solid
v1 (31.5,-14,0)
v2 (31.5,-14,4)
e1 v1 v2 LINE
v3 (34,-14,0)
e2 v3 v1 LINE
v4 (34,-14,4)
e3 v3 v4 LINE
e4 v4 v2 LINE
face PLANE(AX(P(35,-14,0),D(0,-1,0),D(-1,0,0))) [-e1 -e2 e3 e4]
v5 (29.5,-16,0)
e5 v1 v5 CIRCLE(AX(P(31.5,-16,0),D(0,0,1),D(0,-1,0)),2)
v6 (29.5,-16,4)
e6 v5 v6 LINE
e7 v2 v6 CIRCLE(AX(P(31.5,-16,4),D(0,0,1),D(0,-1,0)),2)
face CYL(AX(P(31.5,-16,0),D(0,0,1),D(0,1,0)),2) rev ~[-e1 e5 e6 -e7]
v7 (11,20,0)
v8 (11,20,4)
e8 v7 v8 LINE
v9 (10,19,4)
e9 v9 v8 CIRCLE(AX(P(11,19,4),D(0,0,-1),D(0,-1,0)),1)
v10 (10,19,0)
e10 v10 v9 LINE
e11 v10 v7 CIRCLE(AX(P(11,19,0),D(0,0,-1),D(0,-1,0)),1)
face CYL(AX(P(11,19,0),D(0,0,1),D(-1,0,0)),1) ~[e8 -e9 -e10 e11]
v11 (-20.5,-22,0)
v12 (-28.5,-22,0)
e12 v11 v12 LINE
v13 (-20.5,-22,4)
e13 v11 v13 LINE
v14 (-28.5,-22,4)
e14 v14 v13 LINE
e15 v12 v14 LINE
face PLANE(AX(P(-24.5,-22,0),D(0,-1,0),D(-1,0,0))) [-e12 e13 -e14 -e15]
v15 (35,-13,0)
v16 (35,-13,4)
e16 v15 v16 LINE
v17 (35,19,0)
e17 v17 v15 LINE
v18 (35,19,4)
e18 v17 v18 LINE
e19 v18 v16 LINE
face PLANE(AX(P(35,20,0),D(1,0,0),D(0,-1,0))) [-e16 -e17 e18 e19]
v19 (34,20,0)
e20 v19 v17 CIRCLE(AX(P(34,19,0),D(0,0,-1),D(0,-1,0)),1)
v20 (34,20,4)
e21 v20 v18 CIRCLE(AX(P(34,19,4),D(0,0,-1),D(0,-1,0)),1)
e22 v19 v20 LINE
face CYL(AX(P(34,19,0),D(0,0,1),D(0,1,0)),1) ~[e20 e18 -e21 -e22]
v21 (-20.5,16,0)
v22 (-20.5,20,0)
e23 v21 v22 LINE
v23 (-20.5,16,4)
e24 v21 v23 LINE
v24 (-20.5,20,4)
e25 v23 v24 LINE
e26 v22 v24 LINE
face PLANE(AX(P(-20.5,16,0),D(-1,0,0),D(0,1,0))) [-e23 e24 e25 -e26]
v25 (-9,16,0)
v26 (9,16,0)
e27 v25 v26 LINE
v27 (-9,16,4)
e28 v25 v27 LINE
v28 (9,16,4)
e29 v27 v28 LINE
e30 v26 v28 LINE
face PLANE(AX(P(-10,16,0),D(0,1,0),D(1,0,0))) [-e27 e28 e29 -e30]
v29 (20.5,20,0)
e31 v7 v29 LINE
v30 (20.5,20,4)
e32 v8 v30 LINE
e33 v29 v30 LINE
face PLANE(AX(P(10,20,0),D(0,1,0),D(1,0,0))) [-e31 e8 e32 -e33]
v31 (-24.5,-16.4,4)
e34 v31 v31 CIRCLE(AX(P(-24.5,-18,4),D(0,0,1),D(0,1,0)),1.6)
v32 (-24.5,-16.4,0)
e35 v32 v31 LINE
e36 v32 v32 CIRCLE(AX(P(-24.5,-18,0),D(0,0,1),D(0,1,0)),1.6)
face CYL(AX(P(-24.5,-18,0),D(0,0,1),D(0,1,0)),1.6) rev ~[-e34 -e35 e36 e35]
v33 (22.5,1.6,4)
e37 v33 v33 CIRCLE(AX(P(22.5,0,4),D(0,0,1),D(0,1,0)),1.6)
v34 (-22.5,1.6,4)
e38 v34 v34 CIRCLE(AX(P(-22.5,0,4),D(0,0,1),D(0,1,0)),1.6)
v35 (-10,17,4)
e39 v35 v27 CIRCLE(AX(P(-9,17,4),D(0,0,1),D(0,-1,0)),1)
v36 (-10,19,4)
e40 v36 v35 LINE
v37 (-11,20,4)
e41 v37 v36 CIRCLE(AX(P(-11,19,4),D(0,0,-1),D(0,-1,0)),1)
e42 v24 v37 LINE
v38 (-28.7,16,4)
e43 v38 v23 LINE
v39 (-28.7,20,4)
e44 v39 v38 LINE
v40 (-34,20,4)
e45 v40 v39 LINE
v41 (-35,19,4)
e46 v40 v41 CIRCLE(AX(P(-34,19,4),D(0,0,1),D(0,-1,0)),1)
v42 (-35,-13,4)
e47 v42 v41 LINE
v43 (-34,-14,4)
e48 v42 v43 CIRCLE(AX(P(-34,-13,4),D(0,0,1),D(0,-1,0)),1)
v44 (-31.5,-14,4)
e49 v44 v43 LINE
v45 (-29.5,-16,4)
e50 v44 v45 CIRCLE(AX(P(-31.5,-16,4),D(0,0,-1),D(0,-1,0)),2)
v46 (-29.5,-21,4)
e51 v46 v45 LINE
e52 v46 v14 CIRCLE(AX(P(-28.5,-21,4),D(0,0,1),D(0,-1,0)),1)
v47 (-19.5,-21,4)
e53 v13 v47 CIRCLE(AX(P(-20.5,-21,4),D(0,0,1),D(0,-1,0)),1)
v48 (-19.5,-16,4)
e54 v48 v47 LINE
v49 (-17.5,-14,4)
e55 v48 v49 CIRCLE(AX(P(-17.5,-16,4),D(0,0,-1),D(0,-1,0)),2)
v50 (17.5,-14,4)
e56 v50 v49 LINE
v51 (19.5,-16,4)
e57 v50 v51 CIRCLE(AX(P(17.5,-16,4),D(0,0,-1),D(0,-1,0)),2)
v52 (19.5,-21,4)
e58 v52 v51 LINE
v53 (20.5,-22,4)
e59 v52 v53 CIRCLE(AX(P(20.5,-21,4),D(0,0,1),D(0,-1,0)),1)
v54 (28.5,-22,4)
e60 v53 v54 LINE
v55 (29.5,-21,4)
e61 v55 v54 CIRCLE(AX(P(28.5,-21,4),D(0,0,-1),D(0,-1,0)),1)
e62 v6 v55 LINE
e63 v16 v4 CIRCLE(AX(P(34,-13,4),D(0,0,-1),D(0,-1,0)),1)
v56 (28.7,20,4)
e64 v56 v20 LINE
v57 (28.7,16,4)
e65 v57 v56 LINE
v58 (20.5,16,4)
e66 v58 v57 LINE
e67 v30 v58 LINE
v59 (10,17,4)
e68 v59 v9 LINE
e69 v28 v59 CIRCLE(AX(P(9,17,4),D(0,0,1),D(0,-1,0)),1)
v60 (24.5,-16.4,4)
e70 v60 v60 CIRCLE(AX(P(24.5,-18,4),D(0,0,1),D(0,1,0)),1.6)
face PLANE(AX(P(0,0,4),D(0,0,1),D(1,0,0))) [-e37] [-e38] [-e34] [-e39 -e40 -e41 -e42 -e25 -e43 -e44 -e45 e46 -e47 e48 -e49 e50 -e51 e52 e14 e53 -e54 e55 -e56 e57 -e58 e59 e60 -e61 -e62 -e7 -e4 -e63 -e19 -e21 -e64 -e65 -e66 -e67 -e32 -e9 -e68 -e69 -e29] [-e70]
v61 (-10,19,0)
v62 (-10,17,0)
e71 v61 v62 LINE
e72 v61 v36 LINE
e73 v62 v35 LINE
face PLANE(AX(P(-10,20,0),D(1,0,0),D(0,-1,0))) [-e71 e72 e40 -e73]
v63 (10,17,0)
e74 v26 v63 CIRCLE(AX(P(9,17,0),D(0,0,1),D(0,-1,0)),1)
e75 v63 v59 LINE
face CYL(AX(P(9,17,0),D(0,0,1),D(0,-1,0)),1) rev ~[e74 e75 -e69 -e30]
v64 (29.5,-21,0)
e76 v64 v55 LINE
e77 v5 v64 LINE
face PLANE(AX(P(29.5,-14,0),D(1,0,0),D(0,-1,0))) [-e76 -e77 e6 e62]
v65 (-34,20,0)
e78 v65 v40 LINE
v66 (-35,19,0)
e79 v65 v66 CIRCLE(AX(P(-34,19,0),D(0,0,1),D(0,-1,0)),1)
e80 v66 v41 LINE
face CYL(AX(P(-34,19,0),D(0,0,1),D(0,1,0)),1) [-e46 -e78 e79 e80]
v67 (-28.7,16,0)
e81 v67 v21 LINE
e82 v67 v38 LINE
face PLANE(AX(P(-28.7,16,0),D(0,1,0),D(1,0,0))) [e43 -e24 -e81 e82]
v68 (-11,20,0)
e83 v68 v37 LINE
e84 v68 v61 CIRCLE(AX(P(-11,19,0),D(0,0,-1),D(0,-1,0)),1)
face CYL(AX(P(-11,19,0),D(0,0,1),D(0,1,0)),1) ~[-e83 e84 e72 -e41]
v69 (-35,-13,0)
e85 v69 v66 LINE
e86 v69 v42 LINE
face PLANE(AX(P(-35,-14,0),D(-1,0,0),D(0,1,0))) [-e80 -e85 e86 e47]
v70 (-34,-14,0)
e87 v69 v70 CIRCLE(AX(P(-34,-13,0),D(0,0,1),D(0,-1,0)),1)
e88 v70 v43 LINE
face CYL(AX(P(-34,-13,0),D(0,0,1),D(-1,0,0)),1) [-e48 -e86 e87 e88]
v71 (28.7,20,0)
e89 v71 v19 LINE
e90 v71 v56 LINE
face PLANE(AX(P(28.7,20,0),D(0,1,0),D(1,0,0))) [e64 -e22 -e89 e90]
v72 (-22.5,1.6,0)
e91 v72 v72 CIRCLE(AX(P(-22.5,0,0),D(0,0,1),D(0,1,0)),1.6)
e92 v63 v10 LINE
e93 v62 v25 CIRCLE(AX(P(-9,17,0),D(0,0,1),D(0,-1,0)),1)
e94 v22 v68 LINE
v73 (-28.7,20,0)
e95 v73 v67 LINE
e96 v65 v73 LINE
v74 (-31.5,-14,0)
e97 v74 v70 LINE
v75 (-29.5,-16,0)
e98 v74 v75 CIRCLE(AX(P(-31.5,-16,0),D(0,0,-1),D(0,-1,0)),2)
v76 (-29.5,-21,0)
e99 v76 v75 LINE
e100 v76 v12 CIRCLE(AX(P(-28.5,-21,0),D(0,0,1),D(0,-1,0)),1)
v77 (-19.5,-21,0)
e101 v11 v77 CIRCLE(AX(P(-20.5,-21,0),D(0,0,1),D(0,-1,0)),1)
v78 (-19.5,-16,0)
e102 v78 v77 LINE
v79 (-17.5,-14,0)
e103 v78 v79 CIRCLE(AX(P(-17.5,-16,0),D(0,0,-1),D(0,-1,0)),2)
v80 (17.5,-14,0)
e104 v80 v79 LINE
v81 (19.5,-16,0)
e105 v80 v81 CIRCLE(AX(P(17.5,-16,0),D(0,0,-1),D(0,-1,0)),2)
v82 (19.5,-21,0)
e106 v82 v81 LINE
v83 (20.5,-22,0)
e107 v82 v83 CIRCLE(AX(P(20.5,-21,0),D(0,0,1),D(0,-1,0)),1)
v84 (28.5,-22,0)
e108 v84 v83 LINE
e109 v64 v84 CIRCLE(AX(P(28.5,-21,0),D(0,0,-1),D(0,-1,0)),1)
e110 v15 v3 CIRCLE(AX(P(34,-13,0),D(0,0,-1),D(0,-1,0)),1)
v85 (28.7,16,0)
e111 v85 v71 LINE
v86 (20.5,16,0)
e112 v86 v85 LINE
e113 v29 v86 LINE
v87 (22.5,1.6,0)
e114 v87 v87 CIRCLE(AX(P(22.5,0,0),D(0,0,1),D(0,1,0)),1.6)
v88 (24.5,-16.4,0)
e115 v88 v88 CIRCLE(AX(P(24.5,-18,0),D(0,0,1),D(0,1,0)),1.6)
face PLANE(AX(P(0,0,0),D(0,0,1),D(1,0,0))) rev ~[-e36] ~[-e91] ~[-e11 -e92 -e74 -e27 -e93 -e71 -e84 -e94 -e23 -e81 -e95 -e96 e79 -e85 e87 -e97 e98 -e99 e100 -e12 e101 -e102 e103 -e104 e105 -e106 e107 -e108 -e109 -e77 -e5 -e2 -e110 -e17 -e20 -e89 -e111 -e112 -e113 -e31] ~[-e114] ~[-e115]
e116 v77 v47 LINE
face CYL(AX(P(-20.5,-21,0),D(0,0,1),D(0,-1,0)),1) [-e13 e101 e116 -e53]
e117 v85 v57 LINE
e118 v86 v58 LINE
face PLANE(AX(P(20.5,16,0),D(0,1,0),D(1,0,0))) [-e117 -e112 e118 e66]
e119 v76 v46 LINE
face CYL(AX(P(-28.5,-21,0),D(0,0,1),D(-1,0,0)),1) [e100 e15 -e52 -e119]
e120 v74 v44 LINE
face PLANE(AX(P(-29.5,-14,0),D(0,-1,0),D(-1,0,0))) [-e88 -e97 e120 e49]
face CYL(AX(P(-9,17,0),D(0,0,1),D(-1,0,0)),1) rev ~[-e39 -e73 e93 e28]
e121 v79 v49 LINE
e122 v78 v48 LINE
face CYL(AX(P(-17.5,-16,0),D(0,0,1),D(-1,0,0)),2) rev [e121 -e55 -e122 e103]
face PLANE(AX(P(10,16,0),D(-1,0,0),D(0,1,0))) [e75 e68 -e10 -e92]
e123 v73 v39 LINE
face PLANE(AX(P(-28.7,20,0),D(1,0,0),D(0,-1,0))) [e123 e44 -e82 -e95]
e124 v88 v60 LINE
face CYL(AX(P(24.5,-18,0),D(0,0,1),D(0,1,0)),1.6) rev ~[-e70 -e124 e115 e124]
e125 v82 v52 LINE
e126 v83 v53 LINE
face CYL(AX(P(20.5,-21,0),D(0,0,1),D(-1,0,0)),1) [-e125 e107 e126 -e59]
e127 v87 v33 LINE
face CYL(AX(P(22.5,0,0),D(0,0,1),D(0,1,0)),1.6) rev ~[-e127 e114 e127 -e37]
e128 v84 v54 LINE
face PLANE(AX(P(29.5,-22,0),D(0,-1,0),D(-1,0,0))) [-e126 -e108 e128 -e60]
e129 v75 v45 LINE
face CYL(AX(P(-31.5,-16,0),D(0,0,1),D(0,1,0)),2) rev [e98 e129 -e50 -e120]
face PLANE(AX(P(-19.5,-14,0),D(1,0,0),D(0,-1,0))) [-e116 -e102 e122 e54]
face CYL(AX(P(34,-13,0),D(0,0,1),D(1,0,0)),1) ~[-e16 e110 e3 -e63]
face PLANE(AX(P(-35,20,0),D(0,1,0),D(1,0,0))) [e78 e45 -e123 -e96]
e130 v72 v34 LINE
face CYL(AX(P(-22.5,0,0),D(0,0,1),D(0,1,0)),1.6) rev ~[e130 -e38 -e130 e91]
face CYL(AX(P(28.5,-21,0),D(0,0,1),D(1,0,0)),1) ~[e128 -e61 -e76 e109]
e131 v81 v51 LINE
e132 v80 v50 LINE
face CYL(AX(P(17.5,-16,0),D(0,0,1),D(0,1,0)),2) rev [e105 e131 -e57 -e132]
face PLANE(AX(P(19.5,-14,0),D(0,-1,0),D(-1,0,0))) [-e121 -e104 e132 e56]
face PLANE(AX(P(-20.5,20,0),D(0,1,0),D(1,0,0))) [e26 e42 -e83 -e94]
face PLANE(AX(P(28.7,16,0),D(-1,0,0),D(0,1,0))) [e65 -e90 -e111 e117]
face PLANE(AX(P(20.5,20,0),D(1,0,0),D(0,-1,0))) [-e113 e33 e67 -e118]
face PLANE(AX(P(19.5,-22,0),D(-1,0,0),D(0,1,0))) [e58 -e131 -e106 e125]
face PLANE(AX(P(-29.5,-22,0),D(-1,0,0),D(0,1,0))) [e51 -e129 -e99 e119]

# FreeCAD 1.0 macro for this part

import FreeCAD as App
import Part
import Sketcher
from FreeCAD import Vector


def edges_at(feature, points):
    """Names of the edges that pass closest to the given points."""
    edges = feature.Shape.Edges
    near = lambda p: min(range(len(edges)), key=lambda i: edges[i].distToShape(Part.Vertex(*p))[0])
    return sorted({f"Edge{near(p) + 1}" for p in points})

doc = App.newDocument("Part")
body = doc.addObject("PartDesign::Body", "Body")

sketch1 = body.newObject("Sketcher::SketchObject", "Sketch")
sketch1.AttachmentSupport = (doc.getObject("XY_Plane"), [""])
sketch1.MapMode = "FlatFace"
sketch1.addGeometry([
    Part.LineSegment(Vector(-10, 20, 0), Vector(-20.5, 20, 0)),
    Part.LineSegment(Vector(-20.5, 20, 0), Vector(-20.5, 16, 0)),
    Part.LineSegment(Vector(-20.5, 16, 0), Vector(-28.7, 16, 0)),
    Part.LineSegment(Vector(-28.7, 16, 0), Vector(-28.7, 20, 0)),
    Part.LineSegment(Vector(-28.7, 20, 0), Vector(-35, 20, 0)),
    Part.LineSegment(Vector(-35, 20, 0), Vector(-35, -14, 0)),
    Part.LineSegment(Vector(-35, -14, 0), Vector(-29.5, -14, 0)),
    Part.LineSegment(Vector(-29.5, -14, 0), Vector(-29.5, -22, 0)),
    Part.LineSegment(Vector(-29.5, -22, 0), Vector(-19.5, -22, 0)),
    Part.LineSegment(Vector(-19.5, -22, 0), Vector(-19.5, -14, 0)),
    Part.LineSegment(Vector(-19.5, -14, 0), Vector(19.5, -14, 0)),
    Part.LineSegment(Vector(19.5, -14, 0), Vector(19.5, -22, 0)),
    Part.LineSegment(Vector(19.5, -22, 0), Vector(29.5, -22, 0)),
    Part.LineSegment(Vector(29.5, -22, 0), Vector(29.5, -14, 0)),
    Part.LineSegment(Vector(29.5, -14, 0), Vector(35, -14, 0)),
    Part.LineSegment(Vector(35, -14, 0), Vector(35, 20, 0)),
    Part.LineSegment(Vector(35, 20, 0), Vector(28.7, 20, 0)),
    Part.LineSegment(Vector(28.7, 20, 0), Vector(28.7, 16, 0)),
    Part.LineSegment(Vector(28.7, 16, 0), Vector(20.5, 16, 0)),
    Part.LineSegment(Vector(20.5, 16, 0), Vector(20.5, 20, 0)),
    Part.LineSegment(Vector(20.5, 20, 0), Vector(10, 20, 0)),
    Part.LineSegment(Vector(10, 20, 0), Vector(10, 16, 0)),
    Part.LineSegment(Vector(10, 16, 0), Vector(-10, 16, 0)),
    Part.LineSegment(Vector(-10, 16, 0), Vector(-10, 20, 0)),
], False)
sketch1.addConstraint([
    Sketcher.Constraint("Coincident", 0, 2, 1, 1),
    Sketcher.Constraint("Coincident", 1, 2, 2, 1),
    Sketcher.Constraint("Coincident", 2, 2, 3, 1),
    Sketcher.Constraint("Coincident", 3, 2, 4, 1),
    Sketcher.Constraint("Coincident", 4, 2, 5, 1),
    Sketcher.Constraint("Coincident", 5, 2, 6, 1),
    Sketcher.Constraint("Coincident", 6, 2, 7, 1),
    Sketcher.Constraint("Coincident", 7, 2, 8, 1),
    Sketcher.Constraint("Coincident", 8, 2, 9, 1),
    Sketcher.Constraint("Coincident", 9, 2, 10, 1),
    Sketcher.Constraint("Coincident", 10, 2, 11, 1),
    Sketcher.Constraint("Coincident", 11, 2, 12, 1),
    Sketcher.Constraint("Coincident", 12, 2, 13, 1),
    Sketcher.Constraint("Coincident", 13, 2, 14, 1),
    Sketcher.Constraint("Coincident", 14, 2, 15, 1),
    Sketcher.Constraint("Coincident", 15, 2, 16, 1),
    Sketcher.Constraint("Coincident", 16, 2, 17, 1),
    Sketcher.Constraint("Coincident", 17, 2, 18, 1),
    Sketcher.Constraint("Coincident", 18, 2, 19, 1),
    Sketcher.Constraint("Coincident", 19, 2, 20, 1),
    Sketcher.Constraint("Coincident", 20, 2, 21, 1),
    Sketcher.Constraint("Coincident", 21, 2, 22, 1),
    Sketcher.Constraint("Coincident", 22, 2, 23, 1),
    Sketcher.Constraint("Coincident", 23, 2, 0, 1),
    Sketcher.Constraint("Horizontal", 0),
    Sketcher.Constraint("Vertical", 1),
    Sketcher.Constraint("Horizontal", 2),
    Sketcher.Constraint("Vertical", 3),
    Sketcher.Constraint("Horizontal", 4),
    Sketcher.Constraint("Vertical", 5),
    Sketcher.Constraint("Horizontal", 6),
    Sketcher.Constraint("Vertical", 7),
    Sketcher.Constraint("Horizontal", 8),
    Sketcher.Constraint("Vertical", 9),
    Sketcher.Constraint("Horizontal", 10),
    Sketcher.Constraint("Vertical", 11),
    Sketcher.Constraint("Horizontal", 12),
    Sketcher.Constraint("Vertical", 13),
    Sketcher.Constraint("Horizontal", 14),
    Sketcher.Constraint("Vertical", 15),
    Sketcher.Constraint("Horizontal", 16),
    Sketcher.Constraint("Vertical", 17),
    Sketcher.Constraint("Horizontal", 18),
    Sketcher.Constraint("Vertical", 19),
    Sketcher.Constraint("Horizontal", 20),
    Sketcher.Constraint("Vertical", 21),
    Sketcher.Constraint("Horizontal", 22),
    Sketcher.Constraint("Vertical", 23),
    Sketcher.Constraint("Symmetric", 8, 2, 11, 2, -2),
    Sketcher.Constraint("Symmetric", 6, 2, 13, 2, -2),
    Sketcher.Constraint("Symmetric", 4, 2, 15, 2, -2),
    Sketcher.Constraint("Symmetric", 2, 2, 17, 2, -2),
    Sketcher.Constraint("Symmetric", 0, 2, 19, 2, -2),
    Sketcher.Constraint("Horizontal", 0, 2, 3, 2),
    Sketcher.Constraint("Horizontal", 6, 2, 9, 2),
    Sketcher.Constraint("Horizontal", 18, 2, 21, 2),
    Sketcher.Constraint("Equal", 0, 20),
    Sketcher.Constraint("DistanceX", 8, 1, 8, 2, 10.0),
    Sketcher.Constraint("DistanceX", 10, 1, 10, 2, 39.0),
    Sketcher.Constraint("DistanceX", 22, 2, 22, 1, 20.0),
    Sketcher.Constraint("DistanceY", 1, 2, 1, 1, 4.0),
    Sketcher.Constraint("DistanceY", 7, 2, 7, 1, 8.0),
    Sketcher.Constraint("DistanceX", 2, 2, 2, 1, 8.2),
    Sketcher.Constraint("DistanceY", -1, 1, 0, 2, 20.0),
    Sketcher.Constraint("DistanceY", 5, 2, -1, 1, 14.0),
    Sketcher.Constraint("DistanceX", 0, 2, 0, 1, 10.5),
    Sketcher.Constraint("DistanceX", 4, 2, 4, 1, 6.3),
])
pad1 = body.newObject("PartDesign::Pad", "Pad")
pad1.Profile = sketch1
pad1.Length = 4

sketch2 = body.newObject("Sketcher::SketchObject", "Sketch001")
sketch2.AttachmentSupport = (doc.getObject("XY_Plane"), [""])
sketch2.MapMode = "FlatFace"
sketch2.addGeometry([
    Part.Circle(Vector(-22.5, 0, 0), Vector(0, 0, 1), 1.6),
    Part.Circle(Vector(22.5, 0, 0), Vector(0, 0, 1), 1.6),
    Part.Circle(Vector(-24.5, -18, 0), Vector(0, 0, 1), 1.6),
    Part.Circle(Vector(24.5, -18, 0), Vector(0, 0, 1), 1.6),
], False)
sketch2.addConstraint([
    Sketcher.Constraint("Equal", 0, 1),
    Sketcher.Constraint("Equal", 1, 2),
    Sketcher.Constraint("Equal", 2, 3),
    Sketcher.Constraint("Symmetric", 0, 3, 1, 3, -1, 1),
    Sketcher.Constraint("Symmetric", 2, 3, 3, 3, -2),
    Sketcher.Constraint("PointOnObject", 0, 3, -1),
    Sketcher.Constraint("Diameter", 0, 3.2),
    Sketcher.Constraint("DistanceY", 2, 3, -1, 1, 18.0),
    Sketcher.Constraint("DistanceX", 0, 3, 1, 3, 45.0),
    Sketcher.Constraint("DistanceX", 2, 3, 0, 3, 2.0),
])
doc.recompute()
hole = body.newObject("PartDesign::Hole", "Hole")
hole.Profile = sketch2
hole.ThreadType = "None"
hole.Diameter = 3.2
hole.DepthType = "ThroughAll"
hole.Reversed = True
doc.recompute()

fillet = body.newObject("PartDesign::Fillet", "Fillet")
fillet.Base = (hole, edges_at(hole, [
    (35, 20, 2),
    (35, -14, 2),
    (29.5, -22, 2),
    (19.5, -22, 2),
    (-19.5, -22, 2),
    (-29.5, -22, 2),
    (-35, -14, 2),
    (-35, 20, 2),
    (10, 20, 2),
    (-10, 20, 2),
    (10, 16, 2),
    (-10, 16, 2),
]))
fillet.Radius = 1
doc.recompute()

fillet2 = body.newObject("PartDesign::Fillet", "Fillet001")
fillet2.Base = (fillet, edges_at(fillet, [
    (29.5, -14, 2),
    (19.5, -14, 2),
    (-19.5, -14, 2),
    (-29.5, -14, 2),
]))
fillet2.Radius = 2

doc.recompute()
